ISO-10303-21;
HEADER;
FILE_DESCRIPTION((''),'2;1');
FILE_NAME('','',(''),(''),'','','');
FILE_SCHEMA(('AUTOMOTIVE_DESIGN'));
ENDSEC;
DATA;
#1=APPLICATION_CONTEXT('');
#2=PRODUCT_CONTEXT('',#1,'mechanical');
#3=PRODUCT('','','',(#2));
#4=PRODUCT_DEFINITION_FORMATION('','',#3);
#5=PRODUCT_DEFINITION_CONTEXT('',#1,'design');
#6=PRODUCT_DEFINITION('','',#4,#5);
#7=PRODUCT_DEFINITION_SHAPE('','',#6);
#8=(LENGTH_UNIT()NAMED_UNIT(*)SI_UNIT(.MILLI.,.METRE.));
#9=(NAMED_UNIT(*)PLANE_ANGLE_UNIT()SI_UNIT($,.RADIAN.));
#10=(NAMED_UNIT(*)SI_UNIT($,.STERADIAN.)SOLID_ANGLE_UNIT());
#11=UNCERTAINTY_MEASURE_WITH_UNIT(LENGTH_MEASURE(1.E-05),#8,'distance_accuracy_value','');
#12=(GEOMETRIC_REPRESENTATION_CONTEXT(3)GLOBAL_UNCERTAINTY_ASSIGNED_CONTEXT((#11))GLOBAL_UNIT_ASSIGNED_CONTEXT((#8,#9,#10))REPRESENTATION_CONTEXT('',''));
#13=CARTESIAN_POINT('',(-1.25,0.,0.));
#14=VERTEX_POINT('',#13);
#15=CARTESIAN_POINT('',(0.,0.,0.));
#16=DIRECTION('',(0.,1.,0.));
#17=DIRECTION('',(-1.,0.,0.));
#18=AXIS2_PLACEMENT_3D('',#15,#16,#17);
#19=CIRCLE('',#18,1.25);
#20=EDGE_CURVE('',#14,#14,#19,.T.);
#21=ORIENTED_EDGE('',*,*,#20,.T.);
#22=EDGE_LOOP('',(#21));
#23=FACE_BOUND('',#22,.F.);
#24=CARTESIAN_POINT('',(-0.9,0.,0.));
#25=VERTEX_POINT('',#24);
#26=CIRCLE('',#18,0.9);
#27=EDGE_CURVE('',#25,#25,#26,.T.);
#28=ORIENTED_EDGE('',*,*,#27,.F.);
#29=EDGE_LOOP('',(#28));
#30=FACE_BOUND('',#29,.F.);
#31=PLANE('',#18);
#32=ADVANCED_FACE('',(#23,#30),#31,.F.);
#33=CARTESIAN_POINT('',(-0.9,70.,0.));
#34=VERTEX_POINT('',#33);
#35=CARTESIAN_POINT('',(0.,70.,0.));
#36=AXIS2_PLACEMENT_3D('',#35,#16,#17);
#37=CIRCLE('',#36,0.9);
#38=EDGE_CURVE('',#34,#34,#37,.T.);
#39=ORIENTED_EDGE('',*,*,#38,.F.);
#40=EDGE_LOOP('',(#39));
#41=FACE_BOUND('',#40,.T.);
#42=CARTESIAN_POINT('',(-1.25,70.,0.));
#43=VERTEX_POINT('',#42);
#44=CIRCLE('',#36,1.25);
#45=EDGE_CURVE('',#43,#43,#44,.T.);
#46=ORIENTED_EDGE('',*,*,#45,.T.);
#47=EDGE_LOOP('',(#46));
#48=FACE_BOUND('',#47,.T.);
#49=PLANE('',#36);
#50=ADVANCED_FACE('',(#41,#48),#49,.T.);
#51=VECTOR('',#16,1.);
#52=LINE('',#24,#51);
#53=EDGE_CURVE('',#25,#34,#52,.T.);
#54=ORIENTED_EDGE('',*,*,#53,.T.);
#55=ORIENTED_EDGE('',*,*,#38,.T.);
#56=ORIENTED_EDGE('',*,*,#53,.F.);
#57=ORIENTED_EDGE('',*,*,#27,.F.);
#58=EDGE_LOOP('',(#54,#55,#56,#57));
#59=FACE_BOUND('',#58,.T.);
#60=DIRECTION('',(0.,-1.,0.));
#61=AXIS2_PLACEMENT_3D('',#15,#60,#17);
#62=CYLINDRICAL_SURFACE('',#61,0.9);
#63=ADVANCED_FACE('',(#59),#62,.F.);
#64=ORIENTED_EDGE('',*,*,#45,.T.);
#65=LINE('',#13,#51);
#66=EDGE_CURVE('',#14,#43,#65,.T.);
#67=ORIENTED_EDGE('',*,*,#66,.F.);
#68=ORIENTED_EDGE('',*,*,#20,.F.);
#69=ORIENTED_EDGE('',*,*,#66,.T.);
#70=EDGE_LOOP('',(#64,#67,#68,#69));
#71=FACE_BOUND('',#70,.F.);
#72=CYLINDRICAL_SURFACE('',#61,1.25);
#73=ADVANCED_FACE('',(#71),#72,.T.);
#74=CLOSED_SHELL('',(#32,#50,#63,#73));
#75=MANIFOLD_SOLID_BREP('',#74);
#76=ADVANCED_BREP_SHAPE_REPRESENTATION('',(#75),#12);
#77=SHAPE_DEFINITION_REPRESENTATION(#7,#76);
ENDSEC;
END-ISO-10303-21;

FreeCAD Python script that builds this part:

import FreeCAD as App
import Part
import Sketcher

V = App.Vector
Q = App.Units.Quantity

doc = App.newDocument("Part")
body = doc.addObject("PartDesign::Body", "Body")

# Sketch on XZ plane
sketch1 = doc.addObject("Sketcher::SketchObject", "Sketch")
body.addObject(sketch1)
sketch1.AttachmentSupport = (doc.XZ_Plane, [""])
sketch1.MapMode = "FlatFace"
sketch1.addGeometry(Part.Circle(V(0, 0, 0), V(0, 0, 1), 1.25), False)
sketch1.addGeometry(Part.Circle(V(0, 0, 0), V(0, 0, 1), 0.9), False)
sketch1.addConstraint(Sketcher.Constraint("Coincident", 0, 3, -1, 1))
sketch1.addConstraint(Sketcher.Constraint("Coincident", 1, 3, -1, 1))
sketch1.addConstraint(Sketcher.Constraint("Diameter", 0, Q("2.5 mm")))
sketch1.addConstraint(Sketcher.Constraint("Diameter", 1, Q("1.8 mm")))
pad1 = doc.addObject("PartDesign::Pad", "Pad")
body.addObject(pad1)
pad1.Profile = sketch1
pad1.Length = 70
pad1.Reversed = True

doc.recompute()
